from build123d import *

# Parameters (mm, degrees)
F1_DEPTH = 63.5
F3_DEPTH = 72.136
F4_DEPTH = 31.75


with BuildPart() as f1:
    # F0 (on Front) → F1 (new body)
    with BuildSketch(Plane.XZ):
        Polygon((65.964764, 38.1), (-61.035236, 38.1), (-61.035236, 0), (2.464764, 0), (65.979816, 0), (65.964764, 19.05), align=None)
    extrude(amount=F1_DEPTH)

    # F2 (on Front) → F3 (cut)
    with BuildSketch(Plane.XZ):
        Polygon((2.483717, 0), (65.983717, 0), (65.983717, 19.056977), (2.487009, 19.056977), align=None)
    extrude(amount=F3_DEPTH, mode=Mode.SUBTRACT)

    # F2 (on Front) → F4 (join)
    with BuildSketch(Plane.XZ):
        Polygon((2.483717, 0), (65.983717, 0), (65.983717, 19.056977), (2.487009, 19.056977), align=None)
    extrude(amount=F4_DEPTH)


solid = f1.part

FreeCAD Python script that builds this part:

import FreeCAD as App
import Part
import Sketcher

V = App.Vector
Q = App.Units.Quantity


def add_polygon(sketch, points):
    """Adds a closed chain of lines whose ends are joined by coincident constraints."""
    first, n = sketch.GeometryCount, len(points)
    for a, b in zip(points, points[1:] + points[:1]):
        sketch.addGeometry(Part.LineSegment(App.Vector(*a, 0), App.Vector(*b, 0)), False)
    for i in range(n):
        sketch.addConstraint(Sketcher.Constraint("Coincident", first + i, 2, first + (i + 1) % n, 1))

doc = App.newDocument("Part")
body = doc.addObject("PartDesign::Body", "Body")

sketch1 = body.newObject("Sketcher::SketchObject", "Sketch")
sketch1.AttachmentSupport = (doc.getObject("XZ_Plane"), [""])
sketch1.MapMode = "FlatFace"
add_polygon(sketch1, [(66, 38), (-61, 38), (-61, 0), (66, 0), (66, 19)])
sketch1.addConstraint([
    Sketcher.Constraint("Horizontal", 0),
    Sketcher.Constraint("Vertical", 1),
    Sketcher.Constraint("Horizontal", 2),
    Sketcher.Constraint("Vertical", 4),
    Sketcher.Constraint("PointOnObject", 1, 2, -1),
    Sketcher.Constraint("DistanceX", 0, 2, 0, 1, Q("5 in")),
    Sketcher.Constraint("DistanceY", 1, 2, 1, 1, Q("1.5 in")),
    Sketcher.Constraint("DistanceY", 4, 1, 4, 2, Q("0.75 in")),
    Sketcher.Constraint("DistanceX", 2, 1, 2, 2, 127.015052),
    Sketcher.Constraint("DistanceX", 0, 2, -1, 1, 61.035236),
])
pad1 = body.newObject("PartDesign::Pad", "Pad")
pad1.Profile = sketch1
pad1.Length = Q("2.5 in")

sketch2 = body.newObject("Sketcher::SketchObject", "Sketch001")
sketch2.AttachmentSupport = (doc.getObject("XZ_Plane"), [""])
sketch2.MapMode = "FlatFace"
add_polygon(sketch2, [(2, 0), (66, 0), (66, 19), (2, 19)])
sketch2.addConstraint([
    Sketcher.Constraint("Horizontal", 0),
    Sketcher.Constraint("Vertical", 1),
    Sketcher.Constraint("Horizontal", 2),
    Sketcher.Constraint("PointOnObject", 0, 2, -1),
    Sketcher.Constraint("DistanceX", 0, 1, 0, 2, Q("2.5 in")),
    Sketcher.Constraint("DistanceX", 2, 2, 2, 1, 63.496708),
    Sketcher.Constraint("DistanceY", 1, 1, 1, 2, 19.056977),
    Sketcher.Constraint("DistanceX", -1, 1, 2, 2, 2.487009),
])
pocket1 = body.newObject("PartDesign::Pocket", "Pocket")
pocket1.Profile = sketch2
pocket1.Length = Q("2.84 in")
pocket1.Reversed = True

sketch3 = body.newObject("Sketcher::SketchObject", "Sketch002")
sketch3.AttachmentSupport = (doc.getObject("XZ_Plane"), [""])
sketch3.MapMode = "FlatFace"
add_polygon(sketch3, [(2, 0), (66, 0), (66, 19), (2, 19)])
sketch3.addConstraint([
    Sketcher.Constraint("Horizontal", 0),
    Sketcher.Constraint("Vertical", 1),
    Sketcher.Constraint("Horizontal", 2),
    Sketcher.Constraint("PointOnObject", 0, 2, -1),
    Sketcher.Constraint("DistanceX", 0, 1, 0, 2, Q("2.5 in")),
    Sketcher.Constraint("DistanceX", 2, 2, 2, 1, 63.496708),
    Sketcher.Constraint("DistanceY", 1, 1, 1, 2, 19.056977),
    Sketcher.Constraint("DistanceX", -1, 1, 2, 2, 2.487009),
])
pad2 = body.newObject("PartDesign::Pad", "Pad001")
pad2.Profile = sketch3
pad2.Length = Q("1.25 in")

doc.recompute()
